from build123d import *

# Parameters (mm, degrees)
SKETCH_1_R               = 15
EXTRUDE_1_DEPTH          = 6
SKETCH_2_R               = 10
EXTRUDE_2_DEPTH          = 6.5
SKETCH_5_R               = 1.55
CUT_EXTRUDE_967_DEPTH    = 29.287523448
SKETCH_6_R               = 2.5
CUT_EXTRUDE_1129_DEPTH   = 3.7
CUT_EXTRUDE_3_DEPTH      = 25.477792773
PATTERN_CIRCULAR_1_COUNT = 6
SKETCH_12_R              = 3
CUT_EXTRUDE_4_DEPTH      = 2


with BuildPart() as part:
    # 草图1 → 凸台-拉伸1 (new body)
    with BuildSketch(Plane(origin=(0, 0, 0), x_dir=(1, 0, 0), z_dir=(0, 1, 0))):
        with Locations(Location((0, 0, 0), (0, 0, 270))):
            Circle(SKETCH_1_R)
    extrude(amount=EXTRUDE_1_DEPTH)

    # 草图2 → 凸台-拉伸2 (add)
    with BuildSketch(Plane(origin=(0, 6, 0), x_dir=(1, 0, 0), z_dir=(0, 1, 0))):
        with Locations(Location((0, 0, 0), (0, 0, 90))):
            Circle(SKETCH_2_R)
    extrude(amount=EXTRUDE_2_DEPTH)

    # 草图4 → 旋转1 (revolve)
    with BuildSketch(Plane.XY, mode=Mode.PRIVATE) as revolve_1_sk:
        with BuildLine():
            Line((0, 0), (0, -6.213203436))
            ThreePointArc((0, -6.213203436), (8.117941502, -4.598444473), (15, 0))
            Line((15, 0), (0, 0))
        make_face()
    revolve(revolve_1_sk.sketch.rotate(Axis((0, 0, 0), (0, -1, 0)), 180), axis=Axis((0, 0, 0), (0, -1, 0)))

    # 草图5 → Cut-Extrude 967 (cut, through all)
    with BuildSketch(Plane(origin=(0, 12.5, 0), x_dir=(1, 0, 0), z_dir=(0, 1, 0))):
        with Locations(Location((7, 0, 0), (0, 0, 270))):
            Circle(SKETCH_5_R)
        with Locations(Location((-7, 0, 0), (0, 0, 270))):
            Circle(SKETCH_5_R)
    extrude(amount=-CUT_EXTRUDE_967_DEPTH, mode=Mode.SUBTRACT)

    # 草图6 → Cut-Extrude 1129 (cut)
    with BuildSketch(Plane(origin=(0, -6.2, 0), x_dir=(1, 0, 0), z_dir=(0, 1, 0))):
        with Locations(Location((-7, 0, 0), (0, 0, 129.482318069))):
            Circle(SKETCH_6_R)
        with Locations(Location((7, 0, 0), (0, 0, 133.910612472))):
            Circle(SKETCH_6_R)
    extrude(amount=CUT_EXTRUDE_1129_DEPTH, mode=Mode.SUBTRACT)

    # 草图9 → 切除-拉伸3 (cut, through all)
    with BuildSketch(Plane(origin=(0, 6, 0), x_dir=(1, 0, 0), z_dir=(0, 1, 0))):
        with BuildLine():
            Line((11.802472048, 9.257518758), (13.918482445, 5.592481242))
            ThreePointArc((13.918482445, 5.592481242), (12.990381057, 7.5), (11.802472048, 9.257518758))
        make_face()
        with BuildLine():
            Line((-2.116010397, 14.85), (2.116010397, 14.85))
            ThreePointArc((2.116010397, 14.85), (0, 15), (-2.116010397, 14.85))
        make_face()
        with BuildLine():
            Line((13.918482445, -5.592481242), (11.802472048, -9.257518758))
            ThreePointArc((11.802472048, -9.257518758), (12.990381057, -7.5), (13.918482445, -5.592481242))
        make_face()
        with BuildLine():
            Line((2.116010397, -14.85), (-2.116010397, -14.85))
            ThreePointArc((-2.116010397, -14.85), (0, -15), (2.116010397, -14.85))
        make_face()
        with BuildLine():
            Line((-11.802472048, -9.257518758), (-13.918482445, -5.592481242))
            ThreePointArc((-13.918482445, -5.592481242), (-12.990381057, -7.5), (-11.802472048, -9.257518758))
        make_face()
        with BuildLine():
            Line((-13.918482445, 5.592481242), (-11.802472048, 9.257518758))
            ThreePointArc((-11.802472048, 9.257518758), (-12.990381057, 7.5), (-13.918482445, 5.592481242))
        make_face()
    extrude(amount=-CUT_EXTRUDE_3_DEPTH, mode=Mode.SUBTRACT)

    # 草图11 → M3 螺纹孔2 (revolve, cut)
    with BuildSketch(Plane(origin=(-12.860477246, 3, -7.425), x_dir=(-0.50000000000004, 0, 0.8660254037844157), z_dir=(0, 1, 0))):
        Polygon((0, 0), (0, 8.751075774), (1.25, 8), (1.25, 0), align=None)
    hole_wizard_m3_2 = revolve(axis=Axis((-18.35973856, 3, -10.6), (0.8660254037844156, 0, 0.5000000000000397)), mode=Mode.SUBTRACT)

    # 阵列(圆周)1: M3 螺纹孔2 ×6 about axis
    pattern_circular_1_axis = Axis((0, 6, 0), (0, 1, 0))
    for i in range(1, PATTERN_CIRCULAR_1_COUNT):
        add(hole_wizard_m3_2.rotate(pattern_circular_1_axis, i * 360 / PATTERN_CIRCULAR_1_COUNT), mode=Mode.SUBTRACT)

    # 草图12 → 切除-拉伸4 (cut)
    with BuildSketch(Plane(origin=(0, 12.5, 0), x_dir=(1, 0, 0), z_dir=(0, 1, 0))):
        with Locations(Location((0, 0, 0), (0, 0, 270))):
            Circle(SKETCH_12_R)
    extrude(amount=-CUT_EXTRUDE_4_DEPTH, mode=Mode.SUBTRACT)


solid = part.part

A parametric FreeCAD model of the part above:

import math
import FreeCAD as App
import Part
import Sketcher

V = App.Vector
Q = App.Units.Quantity

doc = App.newDocument("Part")
body = doc.addObject("PartDesign::Body", "Body")

# Sketch on XZ plane
sketch1 = body.newObject("Sketcher::SketchObject", "Sketch")
sketch1.AttachmentSupport = (doc.getObject("XZ_Plane"), [""])
sketch1.MapMode = "FlatFace"
sketch1.addGeometry(Part.Circle(V(0, 0, 0), V(0, 0, 1), 15), False)
sketch1.addConstraint(Sketcher.Constraint("Coincident", 0, 3, -1, 1))
sketch1.addConstraint(Sketcher.Constraint("Diameter", 0, Q("30 mm")))
pad1 = body.newObject("PartDesign::Pad", "Pad")
pad1.Profile = sketch1
pad1.Length = 6
pad1.Reversed = True

# Sketch on XZ plane
sketch2 = body.newObject("Sketcher::SketchObject", "Sketch001")
sketch2.AttachmentSupport = (doc.getObject("XZ_Plane"), [""])
sketch2.MapMode = "FlatFace"
sketch2.AttachmentOffset = App.Placement(V(0, 0, -6), App.Rotation())
sketch2.addGeometry(Part.Circle(V(0, 0, 0), V(0, 0, 1), 10), False)
sketch2.addConstraint(Sketcher.Constraint("Coincident", 0, 3, -1, 1))
sketch2.addConstraint(Sketcher.Constraint("Diameter", 0, Q("20 mm")))
pad2 = body.newObject("PartDesign::Pad", "Pad001")
pad2.Profile = sketch2
pad2.Length = 6.5
pad2.Reversed = True

# Sketch on XY plane
sketch3 = body.newObject("Sketcher::SketchObject", "Sketch002")
sketch3.AttachmentSupport = (doc.getObject("XY_Plane"), [""])
sketch3.MapMode = "FlatFace"
sketch3.addGeometry(Part.LineSegment(V(0, 0, 0), V(0, -6.213203, 0)), False)
sketch3.addGeometry(Part.ArcOfCircle(Part.Circle(V(0, 15, 0), V(0, 0, 1), 21.213203), math.radians(-90), math.radians(-45)), False)
sketch3.addGeometry(Part.LineSegment(V(15, 0, 0), V(0, 0, 0)), False)
sketch3.addConstraint(Sketcher.Constraint("Coincident", 0, 2, 1, 1))
sketch3.addConstraint(Sketcher.Constraint("Coincident", 1, 2, 2, 1))
sketch3.addConstraint(Sketcher.Constraint("Coincident", 2, 2, 0, 1))
sketch3.addConstraint(Sketcher.Constraint("Vertical", 0))
sketch3.addConstraint(Sketcher.Constraint("Horizontal", 2))
sketch3.addConstraint(Sketcher.Constraint("Coincident", 2, 2, -1, 1))
sketch3.addConstraint(Sketcher.Constraint("PointOnObject", 1, 3, -2))
sketch3.addConstraint(Sketcher.Constraint("DistanceX", 2, 2, 2, 1, Q("15 mm")))
sketch3.addConstraint(Sketcher.Constraint("DistanceY", -1, 1, 1, 3, Q("15 mm")))
revolution = body.newObject("PartDesign::Revolution", "Revolution")
revolution.Profile = sketch3
revolution.ReferenceAxis = (sketch3, ["V_Axis"])
revolution.Angle = 360

# Sketch on XZ plane
sketch4 = body.newObject("Sketcher::SketchObject", "Sketch003")
sketch4.AttachmentSupport = (doc.getObject("XZ_Plane"), [""])
sketch4.MapMode = "FlatFace"
sketch4.AttachmentOffset = App.Placement(V(0, 0, -12.5), App.Rotation())
sketch4.addGeometry(Part.Circle(V(7, 0, 0), V(0, 0, 1), 1.55), False)
sketch4.addGeometry(Part.Circle(V(-7, 0, 0), V(0, 0, 1), 1.55), False)
sketch4.addConstraint(Sketcher.Constraint("Equal", 0, 1))
sketch4.addConstraint(Sketcher.Constraint("Symmetric", 0, 3, 1, 3, -1, 1))
sketch4.addConstraint(Sketcher.Constraint("PointOnObject", 0, 3, -1))
sketch4.addConstraint(Sketcher.Constraint("Diameter", 0, Q("3.1 mm")))
sketch4.addConstraint(Sketcher.Constraint("DistanceX", -1, 1, 0, 3, Q("7 mm")))
pocket1 = body.newObject("PartDesign::Pocket", "Pocket")
pocket1.Profile = sketch4
pocket1.Type = "ThroughAll"
pocket1.Reversed = True

# Sketch on XZ plane
sketch5 = body.newObject("Sketcher::SketchObject", "Sketch004")
sketch5.AttachmentSupport = (doc.getObject("XZ_Plane"), [""])
sketch5.MapMode = "FlatFace"
sketch5.AttachmentOffset = App.Placement(V(0, 0, 6.2), App.Rotation())
sketch5.addGeometry(Part.Circle(V(-7, 0, 0), V(0, 0, 1), 2.5), False)
sketch5.addGeometry(Part.Circle(V(7, 0, 0), V(0, 0, 1), 2.5), False)
sketch5.addConstraint(Sketcher.Constraint("Equal", 0, 1))
sketch5.addConstraint(Sketcher.Constraint("Symmetric", 0, 3, 1, 3, -1, 1))
sketch5.addConstraint(Sketcher.Constraint("PointOnObject", 0, 3, -1))
sketch5.addConstraint(Sketcher.Constraint("Diameter", 0, Q("5 mm")))
sketch5.addConstraint(Sketcher.Constraint("DistanceX", 0, 3, -1, 1, Q("7 mm")))
pocket2 = body.newObject("PartDesign::Pocket", "Pocket001")
pocket2.Profile = sketch5
pocket2.Length = 3.7

# Sketch on XZ plane
sketch6 = body.newObject("Sketcher::SketchObject", "Sketch005")
sketch6.AttachmentSupport = (doc.getObject("XZ_Plane"), [""])
sketch6.MapMode = "FlatFace"
sketch6.AttachmentOffset = App.Placement(V(0, 0, -6), App.Rotation())
sketch6.addGeometry(Part.LineSegment(V(11.802472, -9.257519, 0), V(13.918482, -5.592481, 0)), False)
sketch6.addGeometry(Part.ArcOfCircle(Part.Circle(V(0, 0, 0), V(0, 0, 1), 15), math.radians(-38.109614), math.radians(-21.890386)), False)
sketch6.addGeometry(Part.LineSegment(V(-2.11601, -14.85, 0), V(2.11601, -14.85, 0)), False)
sketch6.addGeometry(Part.ArcOfCircle(Part.Circle(V(0, 0, 0), V(0, 0, 1), 15), math.radians(-98.109614), math.radians(-81.890386)), False)
sketch6.addGeometry(Part.LineSegment(V(13.918482, 5.592481, 0), V(11.802472, 9.257519, 0)), False)
sketch6.addGeometry(Part.ArcOfCircle(Part.Circle(V(0, 0, 0), V(0, 0, 1), 15), math.radians(21.890386), math.radians(38.109614)), False)
sketch6.addGeometry(Part.LineSegment(V(2.11601, 14.85, 0), V(-2.11601, 14.85, 0)), False)
sketch6.addGeometry(Part.ArcOfCircle(Part.Circle(V(0, 0, 0), V(0, 0, 1), 15), math.radians(81.890386), math.radians(98.109614)), False)
sketch6.addGeometry(Part.LineSegment(V(-11.802472, 9.257519, 0), V(-13.918482, 5.592481, 0)), False)
sketch6.addGeometry(Part.ArcOfCircle(Part.Circle(V(0, 0, 0), V(0, 0, 1), 15), math.radians(141.890386), math.radians(158.109614)), False)
sketch6.addGeometry(Part.LineSegment(V(-13.918482, -5.592481, 0), V(-11.802472, -9.257519, 0)), False)
sketch6.addGeometry(Part.ArcOfCircle(Part.Circle(V(0, 0, 0), V(0, 0, 1), 15), math.radians(-158.109614), math.radians(-141.890386)), False)
sketch6.addConstraint(Sketcher.Constraint("Coincident", 0, 1, 1, 1))
sketch6.addConstraint(Sketcher.Constraint("Coincident", 1, 2, 0, 2))
sketch6.addConstraint(Sketcher.Constraint("Coincident", 2, 1, 3, 1))
sketch6.addConstraint(Sketcher.Constraint("Coincident", 3, 2, 2, 2))
sketch6.addConstraint(Sketcher.Constraint("Coincident", 4, 1, 5, 1))
sketch6.addConstraint(Sketcher.Constraint("Coincident", 5, 2, 4, 2))
sketch6.addConstraint(Sketcher.Constraint("Coincident", 6, 1, 7, 1))
sketch6.addConstraint(Sketcher.Constraint("Coincident", 7, 2, 6, 2))
sketch6.addConstraint(Sketcher.Constraint("Coincident", 8, 1, 9, 1))
sketch6.addConstraint(Sketcher.Constraint("Coincident", 9, 2, 8, 2))
sketch6.addConstraint(Sketcher.Constraint("Coincident", 10, 1, 11, 1))
sketch6.addConstraint(Sketcher.Constraint("Coincident", 11, 2, 10, 2))
sketch6.addConstraint(Sketcher.Constraint("Horizontal", 2))
sketch6.addConstraint(Sketcher.Constraint("Horizontal", 6))
sketch6.addConstraint(Sketcher.Constraint("Coincident", 1, 3, -1, 1))
sketch6.addConstraint(Sketcher.Constraint("Coincident", 3, 3, -1, 1))
sketch6.addConstraint(Sketcher.Constraint("Coincident", 5, 3, -1, 1))
sketch6.addConstraint(Sketcher.Constraint("Coincident", 7, 3, -1, 1))
sketch6.addConstraint(Sketcher.Constraint("Coincident", 9, 3, -1, 1))
sketch6.addConstraint(Sketcher.Constraint("Coincident", 11, 3, -1, 1))
sketch6.addConstraint(Sketcher.Constraint("Equal", 1, 3))
sketch6.addConstraint(Sketcher.Constraint("Equal", 3, 5))
sketch6.addConstraint(Sketcher.Constraint("Equal", 5, 7))
sketch6.addConstraint(Sketcher.Constraint("Equal", 7, 9))
sketch6.addConstraint(Sketcher.Constraint("Equal", 9, 11))
sketch6.addConstraint(Sketcher.Constraint("Parallel", 0, 8))
sketch6.addConstraint(Sketcher.Constraint("Parallel", 4, 10))
sketch6.addConstraint(Sketcher.Constraint("Horizontal", 5, 2, 8, 1))
sketch6.addConstraint(Sketcher.Constraint("Horizontal", 4, 1, 9, 2))
sketch6.addConstraint(Sketcher.Constraint("Horizontal", 1, 2, 10, 1))
sketch6.addConstraint(Sketcher.Constraint("Vertical", 1, 2, 4, 1))
sketch6.addConstraint(Sketcher.Constraint("Vertical", 3, 2, 6, 1))
sketch6.addConstraint(Sketcher.Constraint("Radius", 1, Q("15 mm")))
sketch6.addConstraint(Sketcher.Constraint("Angle", 0, Q("60 deg")))
sketch6.addConstraint(Sketcher.Constraint("DistanceY", 2, 1, -1, 1, Q("14.85 mm")))
sketch6.addConstraint(Sketcher.Constraint("DistanceY", 0, 1, 4, 1, Q("14.85 mm")))
pocket3 = body.newObject("PartDesign::Pocket", "Pocket002")
pocket3.Profile = sketch6
pocket3.Type = "ThroughAll"
pocket3.Reversed = True

# Sketch on XZ plane
sketch7 = body.newObject("Sketcher::SketchObject", "Sketch006")
sketch7.AttachmentSupport = (doc.getObject("XZ_Plane"), [""])
sketch7.MapMode = "FlatFace"
sketch7.AttachmentOffset = App.Placement(V(0, 0, -3), App.Rotation())
sketch7.addGeometry(Part.LineSegment(V(-5.281823, -3.049462, 0), V(-12.860477, -7.425, 0)), False)
sketch7.addGeometry(Part.LineSegment(V(-12.860477, -7.425, 0), V(-13.485477, -6.342468, 0)), False)
sketch7.addGeometry(Part.LineSegment(V(-13.485477, -6.342468, 0), V(-6.557274, -2.342468, 0)), False)
sketch7.addGeometry(Part.LineSegment(V(-6.557274, -2.342468, 0), V(-5.281823, -3.049462, 0)), False)
sketch7.addGeometry(Part.LineSegment(V(-12.860477, -7.425, 0), V(-5.281823, -3.049462, 0)), True)  # axis
sketch7.addConstraint(Sketcher.Constraint("Coincident", 0, 2, 1, 1))
sketch7.addConstraint(Sketcher.Constraint("Coincident", 1, 2, 2, 1))
sketch7.addConstraint(Sketcher.Constraint("Coincident", 2, 2, 3, 1))
sketch7.addConstraint(Sketcher.Constraint("Coincident", 3, 2, 0, 1))
sketch7.addConstraint(Sketcher.Constraint("Coincident", 4, 1, 0, 2))
sketch7.addConstraint(Sketcher.Constraint("Coincident", 4, 2, 3, 2))
sketch7.addConstraint(Sketcher.Constraint("Perpendicular", 0, 1))
sketch7.addConstraint(Sketcher.Constraint("Perpendicular", 1, 2))
sketch7.addConstraint(Sketcher.Constraint("Angle", 0, Q("-150 deg")))
sketch7.addConstraint(Sketcher.Constraint("Angle", 3, Q("-29 deg")))
sketch7.addConstraint(Sketcher.Constraint("Distance", 2, Q("8 mm")))
sketch7.addConstraint(Sketcher.Constraint("Distance", 1, Q("1.25 mm")))
sketch7.addConstraint(Sketcher.Constraint("DistanceY", 0, 2, -1, 1, Q("7.425 mm")))
sketch7.addConstraint(Sketcher.Constraint("DistanceX", 0, 2, -1, 1, Q("12.860477 mm")))
groove = body.newObject("PartDesign::Groove", "Groove")
groove.Profile = sketch7
groove.ReferenceAxis = (sketch7, ["Axis0"])
groove.Angle = 360
doc.recompute()

polarpattern = body.newObject("PartDesign::PolarPattern", "PolarPattern")
polarpattern.Originals = [groove]
polarpattern.Axis = (doc.getObject("Y_Axis"), [""])
polarpattern.Angle = 360
polarpattern.Occurrences = 6
body.Tip = polarpattern

# Sketch on XZ plane
sketch8 = body.newObject("Sketcher::SketchObject", "Sketch007")
sketch8.AttachmentSupport = (doc.getObject("XZ_Plane"), [""])
sketch8.MapMode = "FlatFace"
sketch8.AttachmentOffset = App.Placement(V(0, 0, -12.5), App.Rotation())
sketch8.addGeometry(Part.Circle(V(0, 0, 0), V(0, 0, 1), 3), False)
sketch8.addConstraint(Sketcher.Constraint("Coincident", 0, 3, -1, 1))
sketch8.addConstraint(Sketcher.Constraint("Diameter", 0, Q("6 mm")))
pocket4 = body.newObject("PartDesign::Pocket", "Pocket003")
pocket4.Profile = sketch8
pocket4.Length = 2
pocket4.Reversed = True

doc.recompute()
